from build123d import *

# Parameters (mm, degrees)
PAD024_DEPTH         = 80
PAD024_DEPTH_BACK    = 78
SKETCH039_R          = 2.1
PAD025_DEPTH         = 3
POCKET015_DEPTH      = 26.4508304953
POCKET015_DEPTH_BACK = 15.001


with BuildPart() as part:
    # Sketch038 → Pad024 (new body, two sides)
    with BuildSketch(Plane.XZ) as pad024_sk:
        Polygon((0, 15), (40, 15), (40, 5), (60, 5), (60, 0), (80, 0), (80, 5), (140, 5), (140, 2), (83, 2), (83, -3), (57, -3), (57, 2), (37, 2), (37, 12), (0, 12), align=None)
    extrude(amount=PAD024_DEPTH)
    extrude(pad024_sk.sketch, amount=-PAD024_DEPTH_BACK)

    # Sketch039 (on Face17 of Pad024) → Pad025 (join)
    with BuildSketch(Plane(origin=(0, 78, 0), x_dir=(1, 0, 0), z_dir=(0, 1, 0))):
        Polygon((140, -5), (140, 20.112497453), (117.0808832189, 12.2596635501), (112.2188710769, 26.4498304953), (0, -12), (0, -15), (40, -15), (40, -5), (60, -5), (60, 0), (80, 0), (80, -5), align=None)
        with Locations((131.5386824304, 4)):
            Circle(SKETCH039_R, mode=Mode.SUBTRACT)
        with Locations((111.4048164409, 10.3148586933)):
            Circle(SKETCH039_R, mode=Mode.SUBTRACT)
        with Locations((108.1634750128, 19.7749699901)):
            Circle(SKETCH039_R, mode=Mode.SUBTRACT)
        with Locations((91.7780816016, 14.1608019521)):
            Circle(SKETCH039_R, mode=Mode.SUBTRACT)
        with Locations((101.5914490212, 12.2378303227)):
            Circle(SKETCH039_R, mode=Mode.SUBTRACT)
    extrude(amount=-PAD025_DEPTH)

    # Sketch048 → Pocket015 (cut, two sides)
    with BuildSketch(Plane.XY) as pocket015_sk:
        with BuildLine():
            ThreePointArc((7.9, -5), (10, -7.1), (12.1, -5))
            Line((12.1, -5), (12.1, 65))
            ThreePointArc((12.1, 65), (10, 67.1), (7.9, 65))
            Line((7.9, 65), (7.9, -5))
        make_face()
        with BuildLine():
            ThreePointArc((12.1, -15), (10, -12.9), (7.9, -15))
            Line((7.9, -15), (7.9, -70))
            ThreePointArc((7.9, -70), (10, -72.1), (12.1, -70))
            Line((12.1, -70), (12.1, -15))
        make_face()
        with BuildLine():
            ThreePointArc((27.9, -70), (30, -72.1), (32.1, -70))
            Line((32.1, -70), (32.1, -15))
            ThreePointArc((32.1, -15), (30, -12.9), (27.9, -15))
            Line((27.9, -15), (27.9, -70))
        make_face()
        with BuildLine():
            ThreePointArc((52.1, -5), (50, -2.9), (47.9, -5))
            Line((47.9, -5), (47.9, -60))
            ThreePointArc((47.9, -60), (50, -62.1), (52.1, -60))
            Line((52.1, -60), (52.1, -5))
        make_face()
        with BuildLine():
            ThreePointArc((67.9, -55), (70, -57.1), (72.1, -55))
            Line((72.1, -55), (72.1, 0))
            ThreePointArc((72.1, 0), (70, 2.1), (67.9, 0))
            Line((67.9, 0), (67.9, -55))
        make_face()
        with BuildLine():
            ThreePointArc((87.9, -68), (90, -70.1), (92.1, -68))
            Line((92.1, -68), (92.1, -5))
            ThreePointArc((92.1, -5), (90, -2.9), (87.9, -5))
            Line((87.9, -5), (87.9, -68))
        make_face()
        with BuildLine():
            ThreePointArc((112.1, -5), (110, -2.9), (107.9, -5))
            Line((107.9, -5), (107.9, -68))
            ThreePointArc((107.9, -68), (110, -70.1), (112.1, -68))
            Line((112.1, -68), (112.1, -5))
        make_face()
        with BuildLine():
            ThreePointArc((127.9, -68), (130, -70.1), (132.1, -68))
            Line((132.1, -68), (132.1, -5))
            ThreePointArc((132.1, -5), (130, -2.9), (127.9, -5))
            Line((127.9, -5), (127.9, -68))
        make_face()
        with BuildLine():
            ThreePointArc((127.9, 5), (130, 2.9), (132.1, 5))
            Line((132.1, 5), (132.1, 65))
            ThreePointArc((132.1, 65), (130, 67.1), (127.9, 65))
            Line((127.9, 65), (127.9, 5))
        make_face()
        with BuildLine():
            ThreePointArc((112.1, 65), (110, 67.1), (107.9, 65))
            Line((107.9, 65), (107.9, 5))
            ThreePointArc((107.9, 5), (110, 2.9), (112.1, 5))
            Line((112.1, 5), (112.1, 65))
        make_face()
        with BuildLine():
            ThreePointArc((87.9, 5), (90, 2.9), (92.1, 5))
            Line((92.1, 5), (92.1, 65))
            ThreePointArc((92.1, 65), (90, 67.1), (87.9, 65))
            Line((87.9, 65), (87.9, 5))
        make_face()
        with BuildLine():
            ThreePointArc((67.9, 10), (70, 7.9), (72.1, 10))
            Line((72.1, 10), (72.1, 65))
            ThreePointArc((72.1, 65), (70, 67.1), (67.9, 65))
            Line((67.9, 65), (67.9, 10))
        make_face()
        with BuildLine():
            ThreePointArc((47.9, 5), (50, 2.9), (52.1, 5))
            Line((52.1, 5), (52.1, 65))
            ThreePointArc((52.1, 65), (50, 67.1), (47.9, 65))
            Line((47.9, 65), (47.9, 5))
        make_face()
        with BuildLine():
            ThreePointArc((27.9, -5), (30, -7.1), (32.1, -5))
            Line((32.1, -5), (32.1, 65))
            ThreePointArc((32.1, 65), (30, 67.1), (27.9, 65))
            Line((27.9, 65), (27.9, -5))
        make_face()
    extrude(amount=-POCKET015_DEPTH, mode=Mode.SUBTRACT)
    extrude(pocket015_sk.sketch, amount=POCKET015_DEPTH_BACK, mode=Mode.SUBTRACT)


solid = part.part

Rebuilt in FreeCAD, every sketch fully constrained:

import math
import FreeCAD as App
import Part
import Sketcher

V = App.Vector

doc = App.newDocument("Part")
body = doc.addObject("PartDesign::Body", "Body")

sketch1 = doc.addObject("Sketcher::SketchObject", "Sketch")
body.addObject(sketch1)
sketch1.AttachmentSupport = (doc.XZ_Plane, [""])
sketch1.MapMode = "FlatFace"
sketch1.addGeometry([
    Part.LineSegment(V(40, 15, 0), V(0, 15, 0)),
    Part.LineSegment(V(0, 15, 0), V(0, 12, 0)),
    Part.LineSegment(V(0, 12, 0), V(37, 12, 0)),
    Part.LineSegment(V(37, 12, 0), V(37, 2, 0)),
    Part.LineSegment(V(37, 2, 0), V(57, 2, 0)),
    Part.LineSegment(V(57, 2, 0), V(57, -3, 0)),
    Part.LineSegment(V(57, -3, 0), V(83, -3, 0)),
    Part.LineSegment(V(83, -3, 0), V(83, 2, 0)),
    Part.LineSegment(V(83, 2, 0), V(140, 2, 0)),
    Part.LineSegment(V(140, 2, 0), V(140, 5, 0)),
    Part.LineSegment(V(140, 5, 0), V(80, 5, 0)),
    Part.LineSegment(V(80, 5, 0), V(80, 0, 0)),
    Part.LineSegment(V(80, 0, 0), V(60, 0, 0)),
    Part.LineSegment(V(60, 0, 0), V(60, 5, 0)),
    Part.LineSegment(V(60, 5, 0), V(40, 5, 0)),
    Part.LineSegment(V(40, 5, 0), V(40, 15, 0)),
], False)
sketch1.addConstraint([
    Sketcher.Constraint("Coincident", 0, 2, 1, 1),
    Sketcher.Constraint("Coincident", 1, 2, 2, 1),
    Sketcher.Constraint("Coincident", 2, 2, 3, 1),
    Sketcher.Constraint("Coincident", 3, 2, 4, 1),
    Sketcher.Constraint("Coincident", 4, 2, 5, 1),
    Sketcher.Constraint("Coincident", 5, 2, 6, 1),
    Sketcher.Constraint("Coincident", 6, 2, 7, 1),
    Sketcher.Constraint("Coincident", 7, 2, 8, 1),
    Sketcher.Constraint("Coincident", 8, 2, 9, 1),
    Sketcher.Constraint("Coincident", 9, 2, 10, 1),
    Sketcher.Constraint("Coincident", 10, 2, 11, 1),
    Sketcher.Constraint("Coincident", 11, 2, 12, 1),
    Sketcher.Constraint("Coincident", 12, 2, 13, 1),
    Sketcher.Constraint("Coincident", 13, 2, 14, 1),
    Sketcher.Constraint("Coincident", 14, 2, 15, 1),
    Sketcher.Constraint("Coincident", 15, 2, 0, 1),
    Sketcher.Constraint("Horizontal", 0),
    Sketcher.Constraint("Vertical", 1),
    Sketcher.Constraint("Horizontal", 2),
    Sketcher.Constraint("Vertical", 3),
    Sketcher.Constraint("Horizontal", 4),
    Sketcher.Constraint("Vertical", 5),
    Sketcher.Constraint("Horizontal", 6),
    Sketcher.Constraint("Vertical", 7),
    Sketcher.Constraint("Horizontal", 8),
    Sketcher.Constraint("Vertical", 9),
    Sketcher.Constraint("Horizontal", 10),
    Sketcher.Constraint("Vertical", 11),
    Sketcher.Constraint("Horizontal", 12),
    Sketcher.Constraint("Vertical", 13),
    Sketcher.Constraint("Horizontal", 14),
    Sketcher.Constraint("Vertical", 15),
    Sketcher.Constraint("PointOnObject", 0, 2, -2),
    Sketcher.Constraint("PointOnObject", 11, 2, -1),
    Sketcher.Constraint("Horizontal", 4, 2, 7, 2),
    Sketcher.Constraint("Horizontal", 10, 2, 13, 2),
    Sketcher.Constraint("Equal", 4, 12),
    Sketcher.Constraint("Equal", 12, 14),
    Sketcher.Constraint("Equal", 1, 9),
    Sketcher.Constraint("Equal", 7, 11),
    Sketcher.Constraint("DistanceX", 0, 2, 0, 1, 40.0),
    Sketcher.Constraint("DistanceX", 2, 1, 2, 2, 37.0),
    Sketcher.Constraint("DistanceX", 4, 1, 4, 2, 20.0),
    Sketcher.Constraint("DistanceX", 6, 1, 6, 2, 26.0),
    Sketcher.Constraint("DistanceX", 8, 1, 8, 2, 57.0),
    Sketcher.Constraint("DistanceY", 1, 2, 1, 1, 3.0),
    Sketcher.Constraint("DistanceY", 3, 2, 3, 1, 10.0),
    Sketcher.Constraint("DistanceY", 5, 2, 5, 1, 5.0),
])
pad1 = doc.addObject("PartDesign::Pad", "Pad")
body.addObject(pad1)
pad1.Profile = sketch1
pad1.Type = "TwoLengths"
pad1.Length = 80
pad1.Length2 = 78

sketch2 = doc.addObject("Sketcher::SketchObject", "Sketch001")
body.addObject(sketch2)
sketch2.AttachmentSupport = (doc.XZ_Plane, [""])
sketch2.MapMode = "FlatFace"
sketch2.AttachmentOffset = App.Placement(V(0, 0, -78), App.Rotation())
sketch2.addGeometry([
    Part.LineSegment(V(140, 5, 0), V(140, -20.1, 0)),
    Part.LineSegment(V(140, -20.1, 0), V(117.1, -12.3, 0)),
    Part.LineSegment(V(117.1, -12.3, 0), V(112.2, -26.4, 0)),
    Part.LineSegment(V(112.2, -26.4, 0), V(0, 12, 0)),
    Part.LineSegment(V(0, 12, 0), V(0, 15, 0)),
    Part.LineSegment(V(0, 15, 0), V(40, 15, 0)),
    Part.LineSegment(V(40, 15, 0), V(40, 5, 0)),
    Part.LineSegment(V(40, 5, 0), V(60, 5, 0)),
    Part.LineSegment(V(60, 5, 0), V(60, 0, 0)),
    Part.LineSegment(V(60, 0, 0), V(80, 0, 0)),
    Part.LineSegment(V(80, 0, 0), V(80, 5, 0)),
    Part.LineSegment(V(80, 5, 0), V(140, 5, 0)),
    Part.Circle(V(111.4, -10.3, 0), V(0, 0, 1), 2.1),
    Part.Circle(V(131.5, -4, 0), V(0, 0, 1), 2.1),
    Part.Circle(V(91.8, -14.2, 0), V(0, 0, 1), 2.1),
    Part.Circle(V(101.6, -12.2, 0), V(0, 0, 1), 2.1),
    Part.Circle(V(108.2, -19.8, 0), V(0, 0, 1), 2.1),
], False)
sketch2.addConstraint([
    Sketcher.Constraint("Coincident", 0, 2, 1, 1),
    Sketcher.Constraint("Coincident", 1, 2, 2, 1),
    Sketcher.Constraint("Coincident", 2, 2, 3, 1),
    Sketcher.Constraint("Coincident", 3, 2, 4, 1),
    Sketcher.Constraint("Coincident", 4, 2, 5, 1),
    Sketcher.Constraint("Coincident", 5, 2, 6, 1),
    Sketcher.Constraint("Coincident", 6, 2, 7, 1),
    Sketcher.Constraint("Coincident", 7, 2, 8, 1),
    Sketcher.Constraint("Coincident", 8, 2, 9, 1),
    Sketcher.Constraint("Coincident", 9, 2, 10, 1),
    Sketcher.Constraint("Coincident", 10, 2, 11, 1),
    Sketcher.Constraint("Coincident", 11, 2, 0, 1),
    Sketcher.Constraint("Vertical", 0),
    Sketcher.Constraint("Vertical", 4),
    Sketcher.Constraint("Horizontal", 5),
    Sketcher.Constraint("Vertical", 6),
    Sketcher.Constraint("Horizontal", 7),
    Sketcher.Constraint("Vertical", 8),
    Sketcher.Constraint("Horizontal", 9),
    Sketcher.Constraint("Vertical", 10),
    Sketcher.Constraint("Horizontal", 11),
    Sketcher.Constraint("Equal", 12, 13),
    Sketcher.Constraint("Equal", 13, 14),
    Sketcher.Constraint("Equal", 14, 15),
    Sketcher.Constraint("Equal", 15, 16),
    Sketcher.Constraint("PointOnObject", 3, 2, -2),
    Sketcher.Constraint("PointOnObject", 8, 2, -1),
    Sketcher.Constraint("Perpendicular", 1, 2),
    Sketcher.Constraint("Perpendicular", 2, 3),
    Sketcher.Constraint("Horizontal", 7, 2, 10, 2),
    Sketcher.Constraint("Equal", 7, 9),
    Sketcher.Constraint("Diameter", 12, 4.2),
    Sketcher.Constraint("DistanceX", 5, 1, 5, 2, 40.0),
    Sketcher.Constraint("DistanceX", 7, 1, 7, 2, 20.0),
    Sketcher.Constraint("DistanceX", 11, 1, 11, 2, 60.0),
    Sketcher.Constraint("DistanceY", 4, 1, 4, 2, 3.0),
    Sketcher.Constraint("DistanceY", 6, 2, 6, 1, 10.0),
    Sketcher.Constraint("DistanceY", 8, 2, 8, 1, 5.0),
    Sketcher.Constraint("Distance", 2, 15.0),
    Sketcher.Constraint("DistanceY", 13, 3, -1, 1, 4.0),
    Sketcher.Constraint("DistanceY", 2, 2, 15, 3, 14.212),
    Sketcher.Constraint("DistanceY", 14, 3, -1, 1, 14.160802),
    Sketcher.Constraint("DistanceX", 14, 3, 13, 3, 39.760601),
    Sketcher.Constraint("DistanceX", 1, 2, 13, 3, 14.457799),
    Sketcher.Constraint("Distance", 1, 24.227111),
    Sketcher.Constraint("DistanceY", 0, 2, 0, 1, 25.112497),
    Sketcher.Constraint("DistanceY", 12, 3, -1, 1, 10.314859),
    Sketcher.Constraint("DistanceX", -1, 1, 15, 3, 101.591449),
    Sketcher.Constraint("DistanceY", 16, 3, -1, 1, 19.77497),
    Sketcher.Constraint("DistanceX", 16, 3, 12, 3, 3.241341),
    Sketcher.Constraint("DistanceX", 16, 3, 1, 2, 8.917408),
])
pad2 = doc.addObject("PartDesign::Pad", "Pad001")
body.addObject(pad2)
pad2.Profile = sketch2
pad2.Length = 3

sketch3 = doc.addObject("Sketcher::SketchObject", "Sketch002")
body.addObject(sketch3)
sketch3.AttachmentSupport = (doc.XY_Plane, [""])
sketch3.MapMode = "FlatFace"
sketch3.addGeometry([
    Part.ArcOfCircle(Part.Circle(V(10, -5, 0), V(0, 0, 1), 2.1), math.radians(180), math.radians(360)),
    Part.LineSegment(V(12.1, -5, 0), V(12.1, 65, 0)),
    Part.ArcOfCircle(Part.Circle(V(10, 65, 0), V(0, 0, 1), 2.1), math.radians(0), math.radians(180)),
    Part.LineSegment(V(7.9, 65, 0), V(7.9, -5, 0)),
    Part.ArcOfCircle(Part.Circle(V(10, -15, 0), V(0, 0, 1), 2.1), math.radians(0), math.radians(180)),
    Part.LineSegment(V(7.9, -15, 0), V(7.9, -70, 0)),
    Part.ArcOfCircle(Part.Circle(V(10, -70, 0), V(0, 0, 1), 2.1), math.radians(180), math.radians(360)),
    Part.LineSegment(V(12.1, -70, 0), V(12.1, -15, 0)),
    Part.ArcOfCircle(Part.Circle(V(30, -70, 0), V(0, 0, 1), 2.1), math.radians(180), math.radians(360)),
    Part.LineSegment(V(32.1, -70, 0), V(32.1, -15, 0)),
    Part.ArcOfCircle(Part.Circle(V(30, -15, 0), V(0, 0, 1), 2.1), math.radians(0), math.radians(180)),
    Part.LineSegment(V(27.9, -15, 0), V(27.9, -70, 0)),
    Part.ArcOfCircle(Part.Circle(V(50, -5, 0), V(0, 0, 1), 2.1), math.radians(0), math.radians(180)),
    Part.LineSegment(V(47.9, -5, 0), V(47.9, -60, 0)),
    Part.ArcOfCircle(Part.Circle(V(50, -60, 0), V(0, 0, 1), 2.1), math.radians(180), math.radians(360)),
    Part.LineSegment(V(52.1, -60, 0), V(52.1, -5, 0)),
    Part.ArcOfCircle(Part.Circle(V(70, -55, 0), V(0, 0, 1), 2.1), math.radians(180), math.radians(360)),
    Part.LineSegment(V(72.1, -55, 0), V(72.1, 0, 0)),
    Part.ArcOfCircle(Part.Circle(V(70, 0, 0), V(0, 0, 1), 2.1), math.radians(0), math.radians(180)),
    Part.LineSegment(V(67.9, 0, 0), V(67.9, -55, 0)),
    Part.ArcOfCircle(Part.Circle(V(90, -68, 0), V(0, 0, 1), 2.1), math.radians(180), math.radians(360)),
    Part.LineSegment(V(92.1, -68, 0), V(92.1, -5, 0)),
    Part.ArcOfCircle(Part.Circle(V(90, -5, 0), V(0, 0, 1), 2.1), math.radians(0), math.radians(180)),
    Part.LineSegment(V(87.9, -5, 0), V(87.9, -68, 0)),
    Part.ArcOfCircle(Part.Circle(V(110, -5, 0), V(0, 0, 1), 2.1), math.radians(0), math.radians(180)),
    Part.LineSegment(V(107.9, -5, 0), V(107.9, -68, 0)),
    Part.ArcOfCircle(Part.Circle(V(110, -68, 0), V(0, 0, 1), 2.1), math.radians(180), math.radians(360)),
    Part.LineSegment(V(112.1, -68, 0), V(112.1, -5, 0)),
    Part.ArcOfCircle(Part.Circle(V(130, -68, 0), V(0, 0, 1), 2.1), math.radians(180), math.radians(360)),
    Part.LineSegment(V(132.1, -68, 0), V(132.1, -5, 0)),
    Part.ArcOfCircle(Part.Circle(V(130, -5, 0), V(0, 0, 1), 2.1), math.radians(0), math.radians(180)),
    Part.LineSegment(V(127.9, -5, 0), V(127.9, -68, 0)),
    Part.ArcOfCircle(Part.Circle(V(130, 5, 0), V(0, 0, 1), 2.1), math.radians(180), math.radians(360)),
    Part.LineSegment(V(132.1, 5, 0), V(132.1, 65, 0)),
    Part.ArcOfCircle(Part.Circle(V(130, 65, 0), V(0, 0, 1), 2.1), math.radians(0), math.radians(180)),
    Part.LineSegment(V(127.9, 65, 0), V(127.9, 5, 0)),
    Part.ArcOfCircle(Part.Circle(V(110, 65, 0), V(0, 0, 1), 2.1), math.radians(0), math.radians(180)),
    Part.LineSegment(V(107.9, 65, 0), V(107.9, 5, 0)),
    Part.ArcOfCircle(Part.Circle(V(110, 5, 0), V(0, 0, 1), 2.1), math.radians(180), math.radians(360)),
    Part.LineSegment(V(112.1, 5, 0), V(112.1, 65, 0)),
    Part.ArcOfCircle(Part.Circle(V(90, 5, 0), V(0, 0, 1), 2.1), math.radians(180), math.radians(360)),
    Part.LineSegment(V(92.1, 5, 0), V(92.1, 65, 0)),
    Part.ArcOfCircle(Part.Circle(V(90, 65, 0), V(0, 0, 1), 2.1), math.radians(0), math.radians(180)),
    Part.LineSegment(V(87.9, 65, 0), V(87.9, 5, 0)),
    Part.ArcOfCircle(Part.Circle(V(70, 10, 0), V(0, 0, 1), 2.1), math.radians(180), math.radians(360)),
    Part.LineSegment(V(72.1, 10, 0), V(72.1, 65, 0)),
    Part.ArcOfCircle(Part.Circle(V(70, 65, 0), V(0, 0, 1), 2.1), math.radians(0), math.radians(180)),
    Part.LineSegment(V(67.9, 65, 0), V(67.9, 10, 0)),
    Part.ArcOfCircle(Part.Circle(V(50, 5, 0), V(0, 0, 1), 2.1), math.radians(180), math.radians(360)),
    Part.LineSegment(V(52.1, 5, 0), V(52.1, 65, 0)),
    Part.ArcOfCircle(Part.Circle(V(50, 65, 0), V(0, 0, 1), 2.1), math.radians(0), math.radians(180)),
    Part.LineSegment(V(47.9, 65, 0), V(47.9, 5, 0)),
    Part.ArcOfCircle(Part.Circle(V(30, -5, 0), V(0, 0, 1), 2.1), math.radians(180), math.radians(360)),
    Part.LineSegment(V(32.1, -5, 0), V(32.1, 65, 0)),
    Part.ArcOfCircle(Part.Circle(V(30, 65, 0), V(0, 0, 1), 2.1), math.radians(0), math.radians(180)),
    Part.LineSegment(V(27.9, 65, 0), V(27.9, -5, 0)),
], False)
sketch3.addConstraint([
    Sketcher.Constraint("Tangent", 0, 2, 1, 1),
    Sketcher.Constraint("Tangent", 1, 2, 2, 1),
    Sketcher.Constraint("Tangent", 2, 2, 3, 1),
    Sketcher.Constraint("Tangent", 3, 2, 0, 1),
    Sketcher.Constraint("Tangent", 4, 2, 5, 1),
    Sketcher.Constraint("Tangent", 5, 2, 6, 1),
    Sketcher.Constraint("Tangent", 6, 2, 7, 1),
    Sketcher.Constraint("Tangent", 7, 2, 4, 1),
    Sketcher.Constraint("Tangent", 8, 2, 9, 1),
    Sketcher.Constraint("Tangent", 9, 2, 10, 1),
    Sketcher.Constraint("Tangent", 10, 2, 11, 1),
    Sketcher.Constraint("Tangent", 11, 2, 8, 1),
    Sketcher.Constraint("Tangent", 12, 2, 13, 1),
    Sketcher.Constraint("Tangent", 13, 2, 14, 1),
    Sketcher.Constraint("Tangent", 14, 2, 15, 1),
    Sketcher.Constraint("Tangent", 15, 2, 12, 1),
    Sketcher.Constraint("Tangent", 16, 2, 17, 1),
    Sketcher.Constraint("Tangent", 17, 2, 18, 1),
    Sketcher.Constraint("Tangent", 18, 2, 19, 1),
    Sketcher.Constraint("Tangent", 19, 2, 16, 1),
    Sketcher.Constraint("Tangent", 20, 2, 21, 1),
    Sketcher.Constraint("Tangent", 21, 2, 22, 1),
    Sketcher.Constraint("Tangent", 22, 2, 23, 1),
    Sketcher.Constraint("Tangent", 23, 2, 20, 1),
    Sketcher.Constraint("Tangent", 24, 2, 25, 1),
    Sketcher.Constraint("Tangent", 25, 2, 26, 1),
    Sketcher.Constraint("Tangent", 26, 2, 27, 1),
    Sketcher.Constraint("Tangent", 27, 2, 24, 1),
    Sketcher.Constraint("Tangent", 28, 2, 29, 1),
    Sketcher.Constraint("Tangent", 29, 2, 30, 1),
    Sketcher.Constraint("Tangent", 30, 2, 31, 1),
    Sketcher.Constraint("Tangent", 31, 2, 28, 1),
    Sketcher.Constraint("Tangent", 32, 2, 33, 1),
    Sketcher.Constraint("Tangent", 33, 2, 34, 1),
    Sketcher.Constraint("Tangent", 34, 2, 35, 1),
    Sketcher.Constraint("Tangent", 35, 2, 32, 1),
    Sketcher.Constraint("Tangent", 36, 2, 37, 1),
    Sketcher.Constraint("Tangent", 37, 2, 38, 1),
    Sketcher.Constraint("Tangent", 38, 2, 39, 1),
    Sketcher.Constraint("Tangent", 39, 2, 36, 1),
    Sketcher.Constraint("Tangent", 40, 2, 41, 1),
    Sketcher.Constraint("Tangent", 41, 2, 42, 1),
    Sketcher.Constraint("Tangent", 42, 2, 43, 1),
    Sketcher.Constraint("Tangent", 43, 2, 40, 1),
    Sketcher.Constraint("Tangent", 44, 2, 45, 1),
    Sketcher.Constraint("Tangent", 45, 2, 46, 1),
    Sketcher.Constraint("Tangent", 46, 2, 47, 1),
    Sketcher.Constraint("Tangent", 47, 2, 44, 1),
    Sketcher.Constraint("Tangent", 48, 2, 49, 1),
    Sketcher.Constraint("Tangent", 49, 2, 50, 1),
    Sketcher.Constraint("Tangent", 50, 2, 51, 1),
    Sketcher.Constraint("Tangent", 51, 2, 48, 1),
    Sketcher.Constraint("Tangent", 52, 2, 53, 1),
    Sketcher.Constraint("Tangent", 53, 2, 54, 1),
    Sketcher.Constraint("Tangent", 54, 2, 55, 1),
    Sketcher.Constraint("Tangent", 55, 2, 52, 1),
    Sketcher.Constraint("Vertical", 1),
    Sketcher.Constraint("Vertical", 3),
    Sketcher.Constraint("Vertical", 5),
    Sketcher.Constraint("Vertical", 7),
    Sketcher.Constraint("Vertical", 9),
    Sketcher.Constraint("Vertical", 11),
    Sketcher.Constraint("Vertical", 13),
    Sketcher.Constraint("Vertical", 15),
    Sketcher.Constraint("Vertical", 17),
    Sketcher.Constraint("Vertical", 19),
    Sketcher.Constraint("Vertical", 21),
    Sketcher.Constraint("Vertical", 23),
    Sketcher.Constraint("Vertical", 25),
    Sketcher.Constraint("Vertical", 27),
    Sketcher.Constraint("Vertical", 29),
    Sketcher.Constraint("Vertical", 31),
    Sketcher.Constraint("Vertical", 33),
    Sketcher.Constraint("Vertical", 35),
    Sketcher.Constraint("Vertical", 37),
    Sketcher.Constraint("Vertical", 39),
    Sketcher.Constraint("Vertical", 41),
    Sketcher.Constraint("Vertical", 43),
    Sketcher.Constraint("Vertical", 45),
    Sketcher.Constraint("Vertical", 47),
    Sketcher.Constraint("Vertical", 49),
    Sketcher.Constraint("Vertical", 51),
    Sketcher.Constraint("Vertical", 53),
    Sketcher.Constraint("Vertical", 55),
    Sketcher.Constraint("Equal", 2, 4),
    Sketcher.Constraint("Equal", 6, 8),
    Sketcher.Constraint("Equal", 10, 12),
    Sketcher.Constraint("Equal", 14, 16),
    Sketcher.Constraint("Equal", 18, 20),
    Sketcher.Constraint("Equal", 22, 24),
    Sketcher.Constraint("Equal", 26, 28),
    Sketcher.Constraint("Equal", 30, 32),
    Sketcher.Constraint("Equal", 34, 36),
    Sketcher.Constraint("Equal", 38, 40),
    Sketcher.Constraint("Equal", 42, 44),
    Sketcher.Constraint("Equal", 46, 48),
    Sketcher.Constraint("Equal", 50, 52),
    Sketcher.Constraint("Symmetric", 30, 3, 32, 3, -1),
    Sketcher.Constraint("Symmetric", 24, 3, 38, 3, -1),
    Sketcher.Constraint("Symmetric", 22, 3, 40, 3, -1),
    Sketcher.Constraint("Symmetric", 12, 3, 48, 3, -1),
    Sketcher.Constraint("PointOnObject", 18, 3, -1),
    Sketcher.Constraint("Horizontal", 6, 3, 8, 3),
    Sketcher.Constraint("Horizontal", 4, 3, 10, 3),
    Sketcher.Constraint("Horizontal", 0, 3, 12, 3),
    Sketcher.Constraint("Horizontal", 12, 3, 22, 3),
    Sketcher.Constraint("Horizontal", 22, 3, 24, 3),
    Sketcher.Constraint("Horizontal", 20, 3, 26, 3),
    Sketcher.Constraint("Horizontal", 26, 3, 28, 3),
    Sketcher.Constraint("Horizontal", 24, 3, 30, 3),
    Sketcher.Constraint("Horizontal", 2, 3, 34, 3),
    Sketcher.Constraint("Horizontal", 34, 3, 36, 3),
    Sketcher.Constraint("Horizontal", 36, 3, 42, 3),
    Sketcher.Constraint("Horizontal", 42, 3, 46, 3),
    Sketcher.Constraint("Horizontal", 46, 3, 50, 3),
    Sketcher.Constraint("Horizontal", 30, 3, 52, 3),
    Sketcher.Constraint("Horizontal", 50, 3, 54, 3),
    Sketcher.Constraint("Vertical", 2, 3, 4, 3),
    Sketcher.Constraint("Vertical", 18, 3, 44, 3),
    Sketcher.Constraint("Vertical", 10, 3, 52, 3),
    Sketcher.Constraint("Equal", 11, 13),
    Sketcher.Constraint("Equal", 15, 17),
    Sketcher.Constraint("Equal", 19, 45),
    Sketcher.Constraint("Radius", 0, 2.1),
    Sketcher.Constraint("DistanceY", 1, 1, 1, 2, 70.0),
    Sketcher.Constraint("DistanceY", 5, 2, 5, 1, 55.0),
    Sketcher.Constraint("DistanceY", 21, 1, 21, 2, 63.0),
    Sketcher.Constraint("DistanceY", 33, 1, 33, 2, 60.0),
    Sketcher.Constraint("DistanceX", -1, 1, 0, 3, 10.0),
    Sketcher.Constraint("DistanceY", 4, 3, -1, 1, 15.0),
    Sketcher.Constraint("DistanceX", -1, 1, 8, 3, 30.0),
    Sketcher.Constraint("DistanceX", -1, 1, 12, 3, 50.0),
    Sketcher.Constraint("DistanceX", -1, 1, 16, 3, 70.0),
    Sketcher.Constraint("DistanceX", -1, 1, 20, 3, 90.0),
    Sketcher.Constraint("DistanceX", -1, 1, 24, 3, 110.0),
    Sketcher.Constraint("DistanceX", -1, 1, 28, 3, 130.0),
])
pocket1 = doc.addObject("PartDesign::Pocket", "Pocket")
body.addObject(pocket1)
pocket1.Profile = sketch3
pocket1.Type = "ThroughAll"
pocket1.Midplane = True

doc.recompute()
